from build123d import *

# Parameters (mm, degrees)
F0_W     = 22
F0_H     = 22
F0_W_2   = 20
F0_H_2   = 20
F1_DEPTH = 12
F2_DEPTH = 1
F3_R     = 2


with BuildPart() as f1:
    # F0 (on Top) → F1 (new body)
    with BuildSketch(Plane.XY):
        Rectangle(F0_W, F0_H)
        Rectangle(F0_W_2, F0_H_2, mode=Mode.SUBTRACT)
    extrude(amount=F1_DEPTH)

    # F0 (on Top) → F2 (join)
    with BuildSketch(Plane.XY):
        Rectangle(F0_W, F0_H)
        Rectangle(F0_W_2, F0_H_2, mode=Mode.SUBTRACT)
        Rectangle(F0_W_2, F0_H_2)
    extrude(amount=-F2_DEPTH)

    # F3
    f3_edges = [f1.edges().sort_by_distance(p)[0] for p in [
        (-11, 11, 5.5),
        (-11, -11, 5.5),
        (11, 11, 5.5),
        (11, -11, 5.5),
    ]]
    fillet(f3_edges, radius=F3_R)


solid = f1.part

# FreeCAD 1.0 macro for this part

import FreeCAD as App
import Part
import Sketcher

V = App.Vector
Q = App.Units.Quantity


def edges_at(feature, points):
    """Names of the edges that pass closest to the given points."""
    edges = feature.Shape.Edges
    near = lambda p: min(range(len(edges)), key=lambda i: edges[i].distToShape(Part.Vertex(*p))[0])
    return sorted({f"Edge{near(p) + 1}" for p in points})

doc = App.newDocument("Part")
body = doc.addObject("PartDesign::Body", "Body")

# Sketch on XY plane
sketch1 = body.newObject("Sketcher::SketchObject", "Sketch")
sketch1.AttachmentSupport = (doc.getObject("XY_Plane"), [""])
sketch1.MapMode = "FlatFace"
sketch1.addGeometry([
    Part.LineSegment(V(-11, 11, 0), V(-11, -11, 0)),  # 0
    Part.LineSegment(V(-11, -11, 0), V(11, -11, 0)),  # 1
    Part.LineSegment(V(11, -11, 0), V(11, 11, 0)),  # 2
    Part.LineSegment(V(11, 11, 0), V(-11, 11, 0)),  # 3
    Part.LineSegment(V(10, -10, 0), V(-10, -10, 0)),  # 4
    Part.LineSegment(V(-10, -10, 0), V(-10, 10, 0)),  # 5
    Part.LineSegment(V(-10, 10, 0), V(10, 10, 0)),  # 6
    Part.LineSegment(V(10, 10, 0), V(10, -10, 0)),  # 7
], False)
sketch1.addConstraint([
    Sketcher.Constraint("Coincident", 0, 2, 1, 1),
    Sketcher.Constraint("Coincident", 1, 2, 2, 1),
    Sketcher.Constraint("Coincident", 2, 2, 3, 1),
    Sketcher.Constraint("Coincident", 3, 2, 0, 1),
    Sketcher.Constraint("Coincident", 4, 2, 5, 1),
    Sketcher.Constraint("Coincident", 5, 2, 6, 1),
    Sketcher.Constraint("Coincident", 6, 2, 7, 1),
    Sketcher.Constraint("Coincident", 7, 2, 4, 1),
    Sketcher.Constraint("Vertical", 0),
    Sketcher.Constraint("Horizontal", 1),
    Sketcher.Constraint("Vertical", 2),
    Sketcher.Constraint("Horizontal", 3),
    Sketcher.Constraint("Horizontal", 4),
    Sketcher.Constraint("Vertical", 5),
    Sketcher.Constraint("Horizontal", 6),
    Sketcher.Constraint("Vertical", 7),
    Sketcher.Constraint("Symmetric", 0, 2, 2, 2, -1, 1),
    Sketcher.Constraint("Symmetric", 4, 2, 6, 2, -1, 1),
    Sketcher.Constraint("Equal", 3, 0),
    Sketcher.Constraint("Equal", 6, 5),
    Sketcher.Constraint("DistanceX", 1, 1, 1, 2, Q("22 mm")),
    Sketcher.Constraint("DistanceX", 4, 2, 4, 1, Q("20 mm")),
])
pad1 = body.newObject("PartDesign::Pad", "Pad")
pad1.Profile = sketch1
pad1.Length = 12

# Sketch on XY plane
sketch2 = body.newObject("Sketcher::SketchObject", "Sketch001")
sketch2.AttachmentSupport = (doc.getObject("XY_Plane"), [""])
sketch2.MapMode = "FlatFace"
sketch2.addGeometry([
    Part.LineSegment(V(-11, 11, 0), V(-11, -11, 0)),
    Part.LineSegment(V(-11, -11, 0), V(11, -11, 0)),
    Part.LineSegment(V(11, -11, 0), V(11, 11, 0)),
    Part.LineSegment(V(11, 11, 0), V(-11, 11, 0)),
], False)
sketch2.addConstraint([
    Sketcher.Constraint("Coincident", 0, 2, 1, 1),
    Sketcher.Constraint("Coincident", 1, 2, 2, 1),
    Sketcher.Constraint("Coincident", 2, 2, 3, 1),
    Sketcher.Constraint("Coincident", 3, 2, 0, 1),
    Sketcher.Constraint("Vertical", 0),
    Sketcher.Constraint("Horizontal", 1),
    Sketcher.Constraint("Vertical", 2),
    Sketcher.Constraint("Horizontal", 3),
    Sketcher.Constraint("Symmetric", 0, 2, 2, 2, -1, 1),
    Sketcher.Constraint("Equal", 3, 0),
    Sketcher.Constraint("DistanceX", 1, 1, 1, 2, Q("22 mm")),
])
pad2 = body.newObject("PartDesign::Pad", "Pad001")
pad2.Profile = sketch2
pad2.Length = 1
pad2.Reversed = True
doc.recompute()

fillet = body.newObject("PartDesign::Fillet", "Fillet")
fillet.Base = (pad2, edges_at(pad2, [
    (-11, 11, 5.5),
    (-11, -11, 5.5),
    (11, 11, 5.5),
    (11, -11, 5.5),
]))
fillet.Radius = 2

doc.recompute()
